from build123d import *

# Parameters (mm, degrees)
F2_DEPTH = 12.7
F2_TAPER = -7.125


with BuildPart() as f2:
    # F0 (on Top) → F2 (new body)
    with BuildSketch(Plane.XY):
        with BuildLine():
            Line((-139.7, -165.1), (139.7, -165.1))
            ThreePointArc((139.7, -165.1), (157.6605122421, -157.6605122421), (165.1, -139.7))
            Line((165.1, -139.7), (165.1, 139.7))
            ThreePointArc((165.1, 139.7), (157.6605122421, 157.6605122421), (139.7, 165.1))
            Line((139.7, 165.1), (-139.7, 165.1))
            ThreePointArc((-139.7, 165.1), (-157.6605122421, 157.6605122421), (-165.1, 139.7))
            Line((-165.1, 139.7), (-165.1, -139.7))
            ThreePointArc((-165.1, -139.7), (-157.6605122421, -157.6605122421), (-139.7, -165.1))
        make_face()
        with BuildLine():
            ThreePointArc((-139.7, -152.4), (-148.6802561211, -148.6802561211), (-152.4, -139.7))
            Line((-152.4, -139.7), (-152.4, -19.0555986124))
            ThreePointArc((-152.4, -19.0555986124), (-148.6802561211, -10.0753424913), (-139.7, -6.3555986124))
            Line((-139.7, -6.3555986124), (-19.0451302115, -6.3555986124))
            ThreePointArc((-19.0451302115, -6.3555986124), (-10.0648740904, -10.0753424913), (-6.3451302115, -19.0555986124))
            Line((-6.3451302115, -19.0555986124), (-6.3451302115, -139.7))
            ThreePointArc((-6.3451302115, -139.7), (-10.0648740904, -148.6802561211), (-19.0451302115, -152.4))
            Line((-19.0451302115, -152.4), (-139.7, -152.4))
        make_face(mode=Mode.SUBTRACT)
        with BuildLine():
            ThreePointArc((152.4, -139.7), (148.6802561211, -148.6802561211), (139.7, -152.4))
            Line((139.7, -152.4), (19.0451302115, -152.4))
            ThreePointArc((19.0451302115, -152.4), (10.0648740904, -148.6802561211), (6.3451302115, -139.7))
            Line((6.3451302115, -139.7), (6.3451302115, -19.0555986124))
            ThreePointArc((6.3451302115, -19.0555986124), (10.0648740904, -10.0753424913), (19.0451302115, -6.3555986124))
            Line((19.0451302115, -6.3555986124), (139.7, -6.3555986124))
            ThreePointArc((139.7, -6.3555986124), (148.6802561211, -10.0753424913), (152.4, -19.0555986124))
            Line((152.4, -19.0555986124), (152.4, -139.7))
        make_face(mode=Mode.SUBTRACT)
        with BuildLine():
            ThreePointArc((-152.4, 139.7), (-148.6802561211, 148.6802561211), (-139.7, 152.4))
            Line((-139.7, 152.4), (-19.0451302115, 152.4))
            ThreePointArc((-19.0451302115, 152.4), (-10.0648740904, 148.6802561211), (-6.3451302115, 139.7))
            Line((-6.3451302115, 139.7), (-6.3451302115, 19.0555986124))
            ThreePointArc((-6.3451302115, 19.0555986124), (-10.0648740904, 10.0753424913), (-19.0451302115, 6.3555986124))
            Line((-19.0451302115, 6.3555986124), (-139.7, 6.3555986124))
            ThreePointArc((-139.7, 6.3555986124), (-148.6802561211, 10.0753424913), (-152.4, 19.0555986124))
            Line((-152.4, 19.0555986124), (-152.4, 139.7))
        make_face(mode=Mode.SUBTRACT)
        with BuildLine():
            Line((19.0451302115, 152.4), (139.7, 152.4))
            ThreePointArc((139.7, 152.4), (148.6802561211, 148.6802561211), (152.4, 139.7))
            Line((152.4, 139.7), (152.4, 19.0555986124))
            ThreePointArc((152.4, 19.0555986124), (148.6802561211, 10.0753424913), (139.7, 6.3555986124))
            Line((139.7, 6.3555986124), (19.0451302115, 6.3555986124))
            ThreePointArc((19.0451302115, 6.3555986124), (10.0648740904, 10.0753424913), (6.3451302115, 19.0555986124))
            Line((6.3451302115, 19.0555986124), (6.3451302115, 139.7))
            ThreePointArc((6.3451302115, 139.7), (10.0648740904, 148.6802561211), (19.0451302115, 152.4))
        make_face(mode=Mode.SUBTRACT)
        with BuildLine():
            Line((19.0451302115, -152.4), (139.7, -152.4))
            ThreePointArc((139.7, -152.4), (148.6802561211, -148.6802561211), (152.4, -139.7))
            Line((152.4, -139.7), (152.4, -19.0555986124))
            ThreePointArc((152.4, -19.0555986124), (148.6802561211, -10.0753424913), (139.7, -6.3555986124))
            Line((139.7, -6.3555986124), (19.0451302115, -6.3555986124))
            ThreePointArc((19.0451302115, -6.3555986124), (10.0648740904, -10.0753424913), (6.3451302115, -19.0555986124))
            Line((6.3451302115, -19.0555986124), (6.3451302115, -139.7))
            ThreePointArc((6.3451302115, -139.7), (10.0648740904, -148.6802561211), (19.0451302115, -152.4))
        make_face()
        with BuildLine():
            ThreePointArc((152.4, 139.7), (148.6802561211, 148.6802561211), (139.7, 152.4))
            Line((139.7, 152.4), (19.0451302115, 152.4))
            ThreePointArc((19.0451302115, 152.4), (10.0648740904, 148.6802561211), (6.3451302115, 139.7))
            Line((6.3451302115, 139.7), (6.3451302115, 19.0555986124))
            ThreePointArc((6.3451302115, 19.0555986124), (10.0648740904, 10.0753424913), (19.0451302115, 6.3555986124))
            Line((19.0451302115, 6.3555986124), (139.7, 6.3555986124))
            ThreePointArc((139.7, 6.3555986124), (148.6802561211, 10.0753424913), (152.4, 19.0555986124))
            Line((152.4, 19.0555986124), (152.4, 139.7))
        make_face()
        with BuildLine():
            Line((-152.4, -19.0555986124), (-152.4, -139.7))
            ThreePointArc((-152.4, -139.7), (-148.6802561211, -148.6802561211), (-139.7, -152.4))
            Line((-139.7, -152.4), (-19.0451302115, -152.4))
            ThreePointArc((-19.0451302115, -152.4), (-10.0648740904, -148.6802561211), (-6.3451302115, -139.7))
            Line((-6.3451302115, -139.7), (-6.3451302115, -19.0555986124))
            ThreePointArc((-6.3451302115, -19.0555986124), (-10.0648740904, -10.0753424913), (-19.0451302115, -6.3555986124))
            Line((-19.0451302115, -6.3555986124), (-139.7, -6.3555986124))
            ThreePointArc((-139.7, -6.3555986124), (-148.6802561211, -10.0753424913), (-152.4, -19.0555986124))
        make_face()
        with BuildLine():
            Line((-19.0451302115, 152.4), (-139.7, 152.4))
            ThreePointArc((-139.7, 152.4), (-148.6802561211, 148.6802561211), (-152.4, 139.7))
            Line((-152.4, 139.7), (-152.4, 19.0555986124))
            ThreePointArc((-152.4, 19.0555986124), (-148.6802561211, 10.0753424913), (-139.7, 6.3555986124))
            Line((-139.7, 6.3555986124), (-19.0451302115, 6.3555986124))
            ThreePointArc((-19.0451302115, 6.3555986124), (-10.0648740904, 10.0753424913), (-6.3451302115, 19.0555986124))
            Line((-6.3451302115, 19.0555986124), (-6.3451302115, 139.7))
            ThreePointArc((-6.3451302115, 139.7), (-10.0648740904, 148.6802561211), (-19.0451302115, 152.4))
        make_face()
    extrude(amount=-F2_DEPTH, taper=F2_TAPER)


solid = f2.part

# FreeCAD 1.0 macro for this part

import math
import FreeCAD as App
import Part
import Sketcher
Q = App.Units.Quantity

doc = App.newDocument("Part")
body = doc.addObject("PartDesign::Body", "Body")

# Sketch on XY plane
sketch1 = doc.addObject("Sketcher::SketchObject", "Sketch")
body.addObject(sketch1)
sketch1.AttachmentSupport = (doc.XY_Plane, [""])
sketch1.MapMode = "FlatFace"
sketch1.addGeometry([
    Part.LineSegment(App.Vector(-140, -165, 0), App.Vector(140, -165, 0)),  # 0
    Part.ArcOfCircle(Part.Circle(App.Vector(140, -140, 0), App.Vector(0, 0, 1), 25), math.radians(-90), math.radians(0)),  # 1
    Part.LineSegment(App.Vector(165, -140, 0), App.Vector(165, 140, 0)),  # 2
    Part.ArcOfCircle(Part.Circle(App.Vector(140, 140, 0), App.Vector(0, 0, 1), 25), math.radians(0), math.radians(90)),  # 3
    Part.LineSegment(App.Vector(140, 165, 0), App.Vector(-140, 165, 0)),  # 4
    Part.ArcOfCircle(Part.Circle(App.Vector(-140, 140, 0), App.Vector(0, 0, 1), 25), math.radians(90), math.radians(180)),  # 5
    Part.LineSegment(App.Vector(-165, 140, 0), App.Vector(-165, -140, 0)),  # 6
    Part.ArcOfCircle(Part.Circle(App.Vector(-140, -140, 0), App.Vector(0, 0, 1), 25), math.radians(180), math.radians(270)),  # 7
], False)
sketch1.addConstraint([
    Sketcher.Constraint("Tangent", 0, 2, 1, 1),
    Sketcher.Constraint("Tangent", 1, 2, 2, 1),
    Sketcher.Constraint("Tangent", 2, 2, 3, 1),
    Sketcher.Constraint("Tangent", 3, 2, 4, 1),
    Sketcher.Constraint("Tangent", 4, 2, 5, 1),
    Sketcher.Constraint("Tangent", 5, 2, 6, 1),
    Sketcher.Constraint("Tangent", 6, 2, 7, 1),
    Sketcher.Constraint("Tangent", 7, 2, 0, 1),
    Sketcher.Constraint("Horizontal", 0),
    Sketcher.Constraint("Vertical", 2),
    Sketcher.Constraint("Horizontal", 4),
    Sketcher.Constraint("Vertical", 6),
    Sketcher.Constraint("Equal", 1, 3),
    Sketcher.Constraint("Equal", 3, 5),
    Sketcher.Constraint("Equal", 5, 7),
    Sketcher.Constraint("Symmetric", 1, 3, 5, 3, -1, 1),
    Sketcher.Constraint("Equal", 4, 2),
    Sketcher.Constraint("Radius", 1, Q("1 in")),
    Sketcher.Constraint("DistanceX", 0, 1, 0, 2, Q("11 in")),
])
pad1 = doc.addObject("PartDesign::Pad", "Pad")
body.addObject(pad1)
pad1.Profile = sketch1
pad1.Length = Q("0.5 in")
pad1.Reversed = True
pad1.TaperAngle = 7.125

doc.recompute()
